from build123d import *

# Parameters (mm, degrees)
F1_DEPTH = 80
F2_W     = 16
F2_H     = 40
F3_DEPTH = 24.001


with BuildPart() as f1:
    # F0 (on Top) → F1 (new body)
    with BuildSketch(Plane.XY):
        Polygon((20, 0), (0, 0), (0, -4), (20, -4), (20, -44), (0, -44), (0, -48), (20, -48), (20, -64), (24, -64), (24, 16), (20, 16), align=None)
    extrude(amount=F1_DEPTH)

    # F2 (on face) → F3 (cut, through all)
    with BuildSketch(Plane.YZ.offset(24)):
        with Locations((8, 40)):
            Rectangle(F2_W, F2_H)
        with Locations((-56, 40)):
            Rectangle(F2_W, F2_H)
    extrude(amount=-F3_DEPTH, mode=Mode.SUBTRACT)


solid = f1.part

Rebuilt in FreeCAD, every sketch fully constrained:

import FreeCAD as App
import Part
import Sketcher
from FreeCAD import Vector
Q = App.Units.Quantity


def add_polygon(sketch, points):
    """Adds a closed chain of lines whose ends are joined by coincident constraints."""
    first, n = sketch.GeometryCount, len(points)
    for a, b in zip(points, points[1:] + points[:1]):
        sketch.addGeometry(Part.LineSegment(App.Vector(*a, 0), App.Vector(*b, 0)), False)
    for i in range(n):
        sketch.addConstraint(Sketcher.Constraint("Coincident", first + i, 2, first + (i + 1) % n, 1))

doc = App.newDocument("Part")
body = doc.addObject("PartDesign::Body", "Body")

sketch1 = body.newObject("Sketcher::SketchObject", "Sketch")
sketch1.AttachmentSupport = (doc.getObject("XY_Plane"), [""])
sketch1.MapMode = "FlatFace"
add_polygon(sketch1, [(20, 0), (0, 0), (0, -4), (20, -4), (20, -44), (0, -44), (0, -48), (20, -48), (20, -64), (24, -64), (24, 16), (20, 16)])
sketch1.addConstraint([
    Sketcher.Constraint("Horizontal", 0),
    Sketcher.Constraint("Vertical", 1),
    Sketcher.Constraint("Horizontal", 2),
    Sketcher.Constraint("Vertical", 3),
    Sketcher.Constraint("Horizontal", 4),
    Sketcher.Constraint("Vertical", 5),
    Sketcher.Constraint("Horizontal", 6),
    Sketcher.Constraint("Vertical", 7),
    Sketcher.Constraint("Horizontal", 8),
    Sketcher.Constraint("Vertical", 9),
    Sketcher.Constraint("Horizontal", 10),
    Sketcher.Constraint("Vertical", 11),
    Sketcher.Constraint("Coincident", 0, 2, -1, 1),
    Sketcher.Constraint("PointOnObject", 4, 2, -2),
    Sketcher.Constraint("Vertical", 3, 2, 6, 2),
    Sketcher.Constraint("Vertical", 7, 2, 10, 2),
    Sketcher.Constraint("Equal", 10, 1),
    Sketcher.Constraint("Equal", 1, 5),
    Sketcher.Constraint("Equal", 7, 11),
    Sketcher.Constraint("DistanceX", 0, 2, 0, 1, Q("20 mm")),
    Sketcher.Constraint("DistanceX", 8, 1, 8, 2, Q("4 mm")),
    Sketcher.Constraint("DistanceY", 3, 2, 3, 1, Q("40 mm")),
    Sketcher.Constraint("DistanceY", 7, 2, 7, 1, Q("16 mm")),
])
pad1 = body.newObject("PartDesign::Pad", "Pad")
pad1.Profile = sketch1
pad1.Length = 80

sketch2 = body.newObject("Sketcher::SketchObject", "Sketch001")
sketch2.AttachmentSupport = (doc.getObject("YZ_Plane"), [""])
sketch2.MapMode = "FlatFace"
sketch2.AttachmentOffset = App.Placement(Vector(0, 0, 24), App.Rotation())
add_polygon(sketch2, [(0, 60), (0, 20), (16, 20), (16, 60)])
add_polygon(sketch2, [(-64, 60), (-64, 20), (-48, 20), (-48, 60)])
sketch2.addConstraint([
    Sketcher.Constraint("Vertical", 0),
    Sketcher.Constraint("Horizontal", 1),
    Sketcher.Constraint("Vertical", 2),
    Sketcher.Constraint("Horizontal", 3),
    Sketcher.Constraint("Vertical", 4),
    Sketcher.Constraint("Horizontal", 5),
    Sketcher.Constraint("Vertical", 6),
    Sketcher.Constraint("Horizontal", 7),
    Sketcher.Constraint("PointOnObject", 0, 2, -2),
    Sketcher.Constraint("Horizontal", 1, 2, 4, 2),
    Sketcher.Constraint("Horizontal", 3, 2, 6, 2),
    Sketcher.Constraint("Equal", 3, 5),
    Sketcher.Constraint("DistanceX", 1, 1, 1, 2, Q("16 mm")),
    Sketcher.Constraint("DistanceY", 0, 2, 0, 1, Q("40 mm")),
    Sketcher.Constraint("DistanceY", -1, 1, 0, 2, Q("20 mm")),
    Sketcher.Constraint("DistanceX", 4, 2, -1, 1, Q("64 mm")),
])
pocket1 = body.newObject("PartDesign::Pocket", "Pocket")
pocket1.Profile = sketch2
pocket1.Type = "ThroughAll"

doc.recompute()
